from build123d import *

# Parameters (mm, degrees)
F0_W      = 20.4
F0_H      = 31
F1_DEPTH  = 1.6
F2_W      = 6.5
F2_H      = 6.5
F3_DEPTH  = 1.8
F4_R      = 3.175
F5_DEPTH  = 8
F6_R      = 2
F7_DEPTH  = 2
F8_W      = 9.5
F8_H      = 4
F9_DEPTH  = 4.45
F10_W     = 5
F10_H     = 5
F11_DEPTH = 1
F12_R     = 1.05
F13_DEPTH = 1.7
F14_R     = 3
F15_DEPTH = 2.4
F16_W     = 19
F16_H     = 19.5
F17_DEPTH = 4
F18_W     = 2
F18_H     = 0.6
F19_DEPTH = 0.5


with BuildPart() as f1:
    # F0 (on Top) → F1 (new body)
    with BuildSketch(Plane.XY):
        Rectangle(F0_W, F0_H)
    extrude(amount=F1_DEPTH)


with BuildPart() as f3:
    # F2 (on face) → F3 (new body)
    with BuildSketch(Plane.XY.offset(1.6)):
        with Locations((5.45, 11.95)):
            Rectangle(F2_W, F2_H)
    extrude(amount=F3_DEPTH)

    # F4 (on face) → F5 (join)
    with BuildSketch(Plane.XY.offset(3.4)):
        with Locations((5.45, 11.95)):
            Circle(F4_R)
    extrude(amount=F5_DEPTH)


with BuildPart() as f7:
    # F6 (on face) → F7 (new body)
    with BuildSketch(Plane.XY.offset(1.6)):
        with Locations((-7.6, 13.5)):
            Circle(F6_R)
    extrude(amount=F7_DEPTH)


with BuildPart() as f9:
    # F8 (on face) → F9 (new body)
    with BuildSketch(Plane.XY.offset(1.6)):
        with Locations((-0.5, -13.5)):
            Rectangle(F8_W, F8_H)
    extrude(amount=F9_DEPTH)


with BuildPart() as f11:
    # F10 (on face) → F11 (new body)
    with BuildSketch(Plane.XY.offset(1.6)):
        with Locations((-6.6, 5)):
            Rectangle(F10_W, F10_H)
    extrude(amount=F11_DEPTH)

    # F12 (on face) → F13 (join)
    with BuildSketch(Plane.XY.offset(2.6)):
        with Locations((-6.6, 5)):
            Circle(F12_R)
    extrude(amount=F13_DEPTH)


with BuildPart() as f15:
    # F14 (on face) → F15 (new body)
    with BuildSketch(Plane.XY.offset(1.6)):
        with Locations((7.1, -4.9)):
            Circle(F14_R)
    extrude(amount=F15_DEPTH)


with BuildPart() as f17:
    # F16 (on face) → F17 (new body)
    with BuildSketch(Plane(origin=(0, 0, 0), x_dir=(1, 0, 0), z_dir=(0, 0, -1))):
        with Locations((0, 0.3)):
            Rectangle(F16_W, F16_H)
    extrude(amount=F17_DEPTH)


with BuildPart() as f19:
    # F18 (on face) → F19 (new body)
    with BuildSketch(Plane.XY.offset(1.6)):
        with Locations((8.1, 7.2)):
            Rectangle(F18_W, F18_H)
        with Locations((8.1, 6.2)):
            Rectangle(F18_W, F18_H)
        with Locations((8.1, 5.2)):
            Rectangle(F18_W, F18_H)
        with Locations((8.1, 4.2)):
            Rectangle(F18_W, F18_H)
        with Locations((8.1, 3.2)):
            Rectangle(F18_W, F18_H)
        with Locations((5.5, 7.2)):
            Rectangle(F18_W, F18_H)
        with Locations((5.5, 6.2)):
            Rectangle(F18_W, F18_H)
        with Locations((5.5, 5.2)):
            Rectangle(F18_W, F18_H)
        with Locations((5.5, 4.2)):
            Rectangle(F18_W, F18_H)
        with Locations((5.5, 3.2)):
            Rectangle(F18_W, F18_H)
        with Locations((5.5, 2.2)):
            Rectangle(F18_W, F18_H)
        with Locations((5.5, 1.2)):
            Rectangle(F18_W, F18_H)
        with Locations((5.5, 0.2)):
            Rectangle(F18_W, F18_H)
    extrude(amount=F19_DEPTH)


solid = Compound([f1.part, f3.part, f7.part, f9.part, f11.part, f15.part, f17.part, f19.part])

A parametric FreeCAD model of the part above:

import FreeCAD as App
import Part
import Sketcher
from FreeCAD import Vector
Q = App.Units.Quantity


def add_polygon(sketch, points):
    """Adds a closed chain of lines whose ends are joined by coincident constraints."""
    first, n = sketch.GeometryCount, len(points)
    for a, b in zip(points, points[1:] + points[:1]):
        sketch.addGeometry(Part.LineSegment(App.Vector(*a, 0), App.Vector(*b, 0)), False)
    for i in range(n):
        sketch.addConstraint(Sketcher.Constraint("Coincident", first + i, 2, first + (i + 1) % n, 1))

doc = App.newDocument("Part")
body = doc.addObject("PartDesign::Body", "Body")

# Sketch on XY plane
sketch1 = body.newObject("Sketcher::SketchObject", "Sketch")
sketch1.AttachmentSupport = (doc.getObject("XY_Plane"), [""])
sketch1.MapMode = "FlatFace"
add_polygon(sketch1, [(-10, 16), (-10, -16), (10, -16), (10, 16)])  # lines 0-3
sketch1.addConstraint([
    Sketcher.Constraint("Vertical", 0),
    Sketcher.Constraint("Horizontal", 1),
    Sketcher.Constraint("Vertical", 2),
    Sketcher.Constraint("Horizontal", 3),
    Sketcher.Constraint("Symmetric", 0, 2, 2, 2, -1, 1),
    Sketcher.Constraint("DistanceY", 0, 2, 0, 1, Q("31 mm")),
    Sketcher.Constraint("DistanceX", 1, 1, 1, 2, Q("20.4 mm")),
])
pad1 = body.newObject("PartDesign::Pad", "Pad")
pad1.Profile = sketch1
pad1.Length = 1.6
body2 = doc.addObject("PartDesign::Body", "Body001")

# Sketch on XY plane
sketch2 = body2.newObject("Sketcher::SketchObject", "Sketch001")
sketch2.AttachmentSupport = (doc.getObject("XY_Plane001"), [""])
sketch2.MapMode = "FlatFace"
sketch2.AttachmentOffset = App.Placement(Vector(0, 0, 1.6), App.Rotation())
add_polygon(sketch2, [(2, 15), (2, 9), (9, 9), (9, 15)])  # lines 0-3
sketch2.addConstraint([
    Sketcher.Constraint("Vertical", 0),
    Sketcher.Constraint("Horizontal", 1),
    Sketcher.Constraint("Vertical", 2),
    Sketcher.Constraint("Horizontal", 3),
    Sketcher.Constraint("Equal", 3, 0),
    Sketcher.Constraint("DistanceX", 1, 1, 1, 2, Q("6.5 mm")),
    Sketcher.Constraint("DistanceX", -1, 1, 0, 2, Q("2.2 mm")),
    Sketcher.Constraint("DistanceY", -1, 1, 0, 2, Q("8.7 mm")),
])
pad2 = body2.newObject("PartDesign::Pad", "Pad001")
pad2.Profile = sketch2
pad2.Length = 1.8

# Sketch on XY plane
sketch3 = body2.newObject("Sketcher::SketchObject", "Sketch002")
sketch3.AttachmentSupport = (doc.getObject("XY_Plane001"), [""])
sketch3.MapMode = "FlatFace"
sketch3.AttachmentOffset = App.Placement(Vector(0, 0, 3.4), App.Rotation())
sketch3.addGeometry(Part.Circle(Vector(5.5, 11.9, 0), Vector(0, 0, 1), 3.2), False)
sketch3.addConstraint([
    Sketcher.Constraint("Diameter", 0, Q("6.35 mm")),
    Sketcher.Constraint("DistanceX", -1, 1, 0, 3, Q("5.45 mm")),
    Sketcher.Constraint("DistanceY", -1, 1, 0, 3, Q("11.95 mm")),
])
pad3 = body2.newObject("PartDesign::Pad", "Pad002")
pad3.Profile = sketch3
pad3.Length = 8
body3 = doc.addObject("PartDesign::Body", "Body002")

# Sketch on XY plane
sketch4 = body3.newObject("Sketcher::SketchObject", "Sketch003")
sketch4.AttachmentSupport = (doc.getObject("XY_Plane002"), [""])
sketch4.MapMode = "FlatFace"
sketch4.AttachmentOffset = App.Placement(Vector(0, 0, 1.6), App.Rotation())
sketch4.addGeometry(Part.Circle(Vector(-7.6, 13.5, 0), Vector(0, 0, 1), 2), False)
sketch4.addConstraint([
    Sketcher.Constraint("Diameter", 0, Q("4 mm")),
    Sketcher.Constraint("DistanceX", 0, 3, -1, 1, Q("7.6 mm")),
    Sketcher.Constraint("DistanceY", -1, 1, 0, 3, Q("13.5 mm")),
])
pad4 = body3.newObject("PartDesign::Pad", "Pad003")
pad4.Profile = sketch4
pad4.Length = 2
body4 = doc.addObject("PartDesign::Body", "Body003")

# Sketch on XY plane
sketch5 = body4.newObject("Sketcher::SketchObject", "Sketch004")
sketch5.AttachmentSupport = (doc.getObject("XY_Plane003"), [""])
sketch5.MapMode = "FlatFace"
sketch5.AttachmentOffset = App.Placement(Vector(0, 0, 1.6), App.Rotation())
add_polygon(sketch5, [(-5.2, -11.5), (-5.2, -15.5), (4.2, -15.5), (4.2, -11.5)])  # lines 0-3
sketch5.addConstraint([
    Sketcher.Constraint("Vertical", 0),
    Sketcher.Constraint("Horizontal", 1),
    Sketcher.Constraint("Vertical", 2),
    Sketcher.Constraint("Horizontal", 3),
    Sketcher.Constraint("DistanceY", 0, 2, 0, 1, Q("4 mm")),
    Sketcher.Constraint("DistanceX", 1, 1, 1, 2, Q("9.5 mm")),
    Sketcher.Constraint("DistanceY", 0, 2, -1, 1, Q("15.5 mm")),
    Sketcher.Constraint("DistanceX", 0, 2, -1, 1, Q("5.25 mm")),
])
pad5 = body4.newObject("PartDesign::Pad", "Pad004")
pad5.Profile = sketch5
pad5.Length = 4.45
body5 = doc.addObject("PartDesign::Body", "Body004")

# Sketch on XY plane
sketch6 = body5.newObject("Sketcher::SketchObject", "Sketch005")
sketch6.AttachmentSupport = (doc.getObject("XY_Plane004"), [""])
sketch6.MapMode = "FlatFace"
sketch6.AttachmentOffset = App.Placement(Vector(0, 0, 1.6), App.Rotation())
add_polygon(sketch6, [(-9, 8), (-9, 2), (-4, 2), (-4, 8)])  # lines 0-3
sketch6.addConstraint([
    Sketcher.Constraint("Vertical", 0),
    Sketcher.Constraint("Horizontal", 1),
    Sketcher.Constraint("Vertical", 2),
    Sketcher.Constraint("Horizontal", 3),
    Sketcher.Constraint("Equal", 3, 0),
    Sketcher.Constraint("DistanceX", 1, 1, 1, 2, Q("5 mm")),
    Sketcher.Constraint("DistanceX", 0, 2, -1, 1, Q("9.1 mm")),
    Sketcher.Constraint("DistanceY", -1, 1, 0, 2, Q("2.5 mm")),
])
pad6 = body5.newObject("PartDesign::Pad", "Pad005")
pad6.Profile = sketch6
pad6.Length = 1

# Sketch on XY plane
sketch7 = body5.newObject("Sketcher::SketchObject", "Sketch006")
sketch7.AttachmentSupport = (doc.getObject("XY_Plane004"), [""])
sketch7.MapMode = "FlatFace"
sketch7.AttachmentOffset = App.Placement(Vector(0, 0, 2.6), App.Rotation())
sketch7.addGeometry(Part.Circle(Vector(-6.6, 5, 0), Vector(0, 0, 1), 1.1), False)
sketch7.addConstraint([
    Sketcher.Constraint("Diameter", 0, Q("2.1 mm")),
    Sketcher.Constraint("DistanceY", -1, 1, 0, 3, Q("5 mm")),
    Sketcher.Constraint("DistanceX", 0, 3, -1, 1, Q("6.6 mm")),
])
pad7 = body5.newObject("PartDesign::Pad", "Pad006")
pad7.Profile = sketch7
pad7.Length = 1.7
body6 = doc.addObject("PartDesign::Body", "Body005")

# Sketch on XY plane
sketch8 = body6.newObject("Sketcher::SketchObject", "Sketch007")
sketch8.AttachmentSupport = (doc.getObject("XY_Plane005"), [""])
sketch8.MapMode = "FlatFace"
sketch8.AttachmentOffset = App.Placement(Vector(0, 0, 1.6), App.Rotation())
sketch8.addGeometry(Part.Circle(Vector(7.1, -4.9, 0), Vector(0, 0, 1), 3), False)
sketch8.addConstraint([
    Sketcher.Constraint("Diameter", 0, Q("6 mm")),
    Sketcher.Constraint("DistanceX", -1, 1, 0, 3, Q("7.1 mm")),
    Sketcher.Constraint("DistanceY", 0, 3, -1, 1, Q("4.9 mm")),
])
pad8 = body6.newObject("PartDesign::Pad", "Pad007")
pad8.Profile = sketch8
pad8.Length = 2.4
body7 = doc.addObject("PartDesign::Body", "Body006")

# Sketch on XY plane
sketch9 = body7.newObject("Sketcher::SketchObject", "Sketch008")
sketch9.AttachmentSupport = (doc.getObject("XY_Plane006"), [""])
sketch9.MapMode = "FlatFace"
add_polygon(sketch9, [(-10, -10), (-10, 9), (10, 9), (10, -10)])  # lines 0-3
sketch9.addConstraint([
    Sketcher.Constraint("Vertical", 0),
    Sketcher.Constraint("Horizontal", 1),
    Sketcher.Constraint("Vertical", 2),
    Sketcher.Constraint("Horizontal", 3),
    Sketcher.Constraint("DistanceX", 1, 1, 1, 2, Q("19 mm")),
    Sketcher.Constraint("DistanceY", 0, 1, 0, 2, Q("19.5 mm")),
    Sketcher.Constraint("DistanceX", 0, 2, -1, 1, Q("9.5 mm")),
    Sketcher.Constraint("DistanceY", -1, 1, 0, 2, Q("9.45 mm")),
])
pad9 = body7.newObject("PartDesign::Pad", "Pad008")
pad9.Profile = sketch9
pad9.Length = 4
pad9.Reversed = True
body8 = doc.addObject("PartDesign::Body", "Body007")
body8.AllowCompound = True

# Sketch on XY plane
sketch10 = body8.newObject("Sketcher::SketchObject", "Sketch009")
sketch10.AttachmentSupport = (doc.getObject("XY_Plane007"), [""])
sketch10.MapMode = "FlatFace"
sketch10.AttachmentOffset = App.Placement(Vector(0, 0, 1.6), App.Rotation())
add_polygon(sketch10, [(7.1, 7.5), (7.1, 6.9), (9.1, 6.9), (9.1, 7.5)])  # lines 0-3
add_polygon(sketch10, [(7.1, 6.5), (7.1, 5.9), (9.1, 5.9), (9.1, 6.5)])  # lines 4-7
add_polygon(sketch10, [(7.1, 5.5), (7.1, 4.9), (9.1, 4.9), (9.1, 5.5)])  # lines 8-11
add_polygon(sketch10, [(7.1, 4.5), (7.1, 3.9), (9.1, 3.9), (9.1, 4.5)])  # lines 12-15
add_polygon(sketch10, [(7.1, 3.5), (7.1, 2.9), (9.1, 2.9), (9.1, 3.5)])  # lines 16-19
add_polygon(sketch10, [(4.5, 7.5), (4.5, 6.9), (6.5, 6.9), (6.5, 7.5)])  # lines 20-23
add_polygon(sketch10, [(4.5, 6.5), (4.5, 5.9), (6.5, 5.9), (6.5, 6.5)])  # lines 24-27
add_polygon(sketch10, [(4.5, 5.5), (4.5, 4.9), (6.5, 4.9), (6.5, 5.5)])  # lines 28-31
add_polygon(sketch10, [(4.5, 4.5), (4.5, 3.9), (6.5, 3.9), (6.5, 4.5)])  # lines 32-35
add_polygon(sketch10, [(4.5, 3.5), (4.5, 2.9), (6.5, 2.9), (6.5, 3.5)])  # lines 36-39
add_polygon(sketch10, [(4.5, 2.5), (4.5, 1.9), (6.5, 1.9), (6.5, 2.5)])  # lines 40-43
add_polygon(sketch10, [(4.5, 1.5), (4.5, 0.9), (6.5, 0.9), (6.5, 1.5)])  # lines 44-47
add_polygon(sketch10, [(4.5, 0.5), (4.5, -0.1), (6.5, -0.1), (6.5, 0.5)])  # lines 48-51
sketch10.addConstraint([
    Sketcher.Constraint("Vertical", 0),
    Sketcher.Constraint("Horizontal", 1),
    Sketcher.Constraint("Vertical", 2),
    Sketcher.Constraint("Horizontal", 3),
    Sketcher.Constraint("Vertical", 4),
    Sketcher.Constraint("Horizontal", 5),
    Sketcher.Constraint("Vertical", 6),
    Sketcher.Constraint("Horizontal", 7),
    Sketcher.Constraint("Vertical", 8),
    Sketcher.Constraint("Horizontal", 9),
    Sketcher.Constraint("Vertical", 10),
    Sketcher.Constraint("Horizontal", 11),
    Sketcher.Constraint("Vertical", 12),
    Sketcher.Constraint("Horizontal", 13),
    Sketcher.Constraint("Vertical", 14),
    Sketcher.Constraint("Horizontal", 15),
    Sketcher.Constraint("Vertical", 16),
    Sketcher.Constraint("Horizontal", 17),
    Sketcher.Constraint("Vertical", 18),
    Sketcher.Constraint("Horizontal", 19),
    Sketcher.Constraint("Vertical", 20),
    Sketcher.Constraint("Horizontal", 21),
    Sketcher.Constraint("Vertical", 22),
    Sketcher.Constraint("Horizontal", 23),
    Sketcher.Constraint("Vertical", 24),
    Sketcher.Constraint("Horizontal", 25),
    Sketcher.Constraint("Vertical", 26),
    Sketcher.Constraint("Horizontal", 27),
    Sketcher.Constraint("Vertical", 28),
    Sketcher.Constraint("Horizontal", 29),
    Sketcher.Constraint("Vertical", 30),
    Sketcher.Constraint("Horizontal", 31),
    Sketcher.Constraint("Vertical", 32),
    Sketcher.Constraint("Horizontal", 33),
    Sketcher.Constraint("Vertical", 34),
    Sketcher.Constraint("Horizontal", 35),
    Sketcher.Constraint("Vertical", 36),
    Sketcher.Constraint("Horizontal", 37),
    Sketcher.Constraint("Vertical", 38),
    Sketcher.Constraint("Horizontal", 39),
    Sketcher.Constraint("Vertical", 40),
    Sketcher.Constraint("Horizontal", 41),
    Sketcher.Constraint("Vertical", 42),
    Sketcher.Constraint("Horizontal", 43),
    Sketcher.Constraint("Vertical", 44),
    Sketcher.Constraint("Horizontal", 45),
    Sketcher.Constraint("Vertical", 46),
    Sketcher.Constraint("Horizontal", 47),
    Sketcher.Constraint("Vertical", 48),
    Sketcher.Constraint("Horizontal", 49),
    Sketcher.Constraint("Vertical", 50),
    Sketcher.Constraint("Horizontal", 51),
    Sketcher.Constraint("Horizontal", 1, 2, 20, 2),
    Sketcher.Constraint("Horizontal", 3, 2, 22, 2),
    Sketcher.Constraint("Horizontal", 5, 2, 24, 2),
    Sketcher.Constraint("Horizontal", 7, 2, 26, 2),
    Sketcher.Constraint("Horizontal", 9, 2, 28, 2),
    Sketcher.Constraint("Horizontal", 11, 2, 30, 2),
    Sketcher.Constraint("Horizontal", 13, 2, 32, 2),
    Sketcher.Constraint("Horizontal", 15, 2, 34, 2),
    Sketcher.Constraint("Horizontal", 17, 2, 36, 2),
    Sketcher.Constraint("Horizontal", 19, 2, 38, 2),
    Sketcher.Constraint("Vertical", 3, 2, 4, 2),
    Sketcher.Constraint("Vertical", 2, 2, 5, 2),
    Sketcher.Constraint("Vertical", 7, 2, 8, 2),
    Sketcher.Constraint("Vertical", 6, 2, 9, 2),
    Sketcher.Constraint("Vertical", 11, 2, 12, 2),
    Sketcher.Constraint("Vertical", 10, 2, 13, 2),
    Sketcher.Constraint("Vertical", 15, 2, 16, 2),
    Sketcher.Constraint("Vertical", 14, 2, 17, 2),
    Sketcher.Constraint("Vertical", 23, 2, 24, 2),
    Sketcher.Constraint("Vertical", 22, 2, 25, 2),
    Sketcher.Constraint("Vertical", 27, 2, 28, 2),
    Sketcher.Constraint("Vertical", 26, 2, 29, 2),
    Sketcher.Constraint("Vertical", 31, 2, 32, 2),
    Sketcher.Constraint("Vertical", 30, 2, 33, 2),
    Sketcher.Constraint("Vertical", 35, 2, 36, 2),
    Sketcher.Constraint("Vertical", 34, 2, 37, 2),
    Sketcher.Constraint("Vertical", 39, 2, 40, 2),
    Sketcher.Constraint("Vertical", 38, 2, 41, 2),
    Sketcher.Constraint("Vertical", 43, 2, 44, 2),
    Sketcher.Constraint("Vertical", 42, 2, 45, 2),
    Sketcher.Constraint("Vertical", 47, 2, 48, 2),
    Sketcher.Constraint("Vertical", 46, 2, 49, 2),
    Sketcher.Constraint("Equal", 19, 21),
    Sketcher.Constraint("Equal", 2, 4),
    Sketcher.Constraint("Equal", 6, 8),
    Sketcher.Constraint("Equal", 10, 12),
    Sketcher.Constraint("Equal", 14, 16),
    Sketcher.Constraint("Equal", 38, 40),
    Sketcher.Constraint("Equal", 42, 44),
    Sketcher.Constraint("Equal", 46, 48),
    Sketcher.Constraint("DistanceX", 1, 1, 1, 2, Q("2 mm")),
    Sketcher.Constraint("DistanceY", 0, 2, 0, 1, Q("0.6 mm")),
    Sketcher.Constraint("DistanceY", 4, 2, 0, 2, Q("1 mm")),
    Sketcher.Constraint("DistanceY", 8, 2, 4, 2, Q("1 mm")),
    Sketcher.Constraint("DistanceY", 12, 2, 8, 2, Q("1 mm")),
    Sketcher.Constraint("DistanceY", 16, 2, 12, 2, Q("1 mm")),
    Sketcher.Constraint("DistanceY", 40, 2, 36, 2, Q("1 mm")),
    Sketcher.Constraint("DistanceY", 44, 2, 40, 2, Q("1 mm")),
    Sketcher.Constraint("DistanceY", 48, 2, 44, 2, Q("1 mm")),
    Sketcher.Constraint("DistanceX", -1, 1, 0, 2, Q("7.1 mm")),
    Sketcher.Constraint("DistanceY", -1, 1, 0, 2, Q("6.9 mm")),
    Sketcher.Constraint("DistanceX", -1, 1, 20, 2, Q("4.5 mm")),
])
pad10 = body8.newObject("PartDesign::Pad", "Pad009")
pad10.Profile = sketch10
pad10.Length = 0.5

doc.recompute()
